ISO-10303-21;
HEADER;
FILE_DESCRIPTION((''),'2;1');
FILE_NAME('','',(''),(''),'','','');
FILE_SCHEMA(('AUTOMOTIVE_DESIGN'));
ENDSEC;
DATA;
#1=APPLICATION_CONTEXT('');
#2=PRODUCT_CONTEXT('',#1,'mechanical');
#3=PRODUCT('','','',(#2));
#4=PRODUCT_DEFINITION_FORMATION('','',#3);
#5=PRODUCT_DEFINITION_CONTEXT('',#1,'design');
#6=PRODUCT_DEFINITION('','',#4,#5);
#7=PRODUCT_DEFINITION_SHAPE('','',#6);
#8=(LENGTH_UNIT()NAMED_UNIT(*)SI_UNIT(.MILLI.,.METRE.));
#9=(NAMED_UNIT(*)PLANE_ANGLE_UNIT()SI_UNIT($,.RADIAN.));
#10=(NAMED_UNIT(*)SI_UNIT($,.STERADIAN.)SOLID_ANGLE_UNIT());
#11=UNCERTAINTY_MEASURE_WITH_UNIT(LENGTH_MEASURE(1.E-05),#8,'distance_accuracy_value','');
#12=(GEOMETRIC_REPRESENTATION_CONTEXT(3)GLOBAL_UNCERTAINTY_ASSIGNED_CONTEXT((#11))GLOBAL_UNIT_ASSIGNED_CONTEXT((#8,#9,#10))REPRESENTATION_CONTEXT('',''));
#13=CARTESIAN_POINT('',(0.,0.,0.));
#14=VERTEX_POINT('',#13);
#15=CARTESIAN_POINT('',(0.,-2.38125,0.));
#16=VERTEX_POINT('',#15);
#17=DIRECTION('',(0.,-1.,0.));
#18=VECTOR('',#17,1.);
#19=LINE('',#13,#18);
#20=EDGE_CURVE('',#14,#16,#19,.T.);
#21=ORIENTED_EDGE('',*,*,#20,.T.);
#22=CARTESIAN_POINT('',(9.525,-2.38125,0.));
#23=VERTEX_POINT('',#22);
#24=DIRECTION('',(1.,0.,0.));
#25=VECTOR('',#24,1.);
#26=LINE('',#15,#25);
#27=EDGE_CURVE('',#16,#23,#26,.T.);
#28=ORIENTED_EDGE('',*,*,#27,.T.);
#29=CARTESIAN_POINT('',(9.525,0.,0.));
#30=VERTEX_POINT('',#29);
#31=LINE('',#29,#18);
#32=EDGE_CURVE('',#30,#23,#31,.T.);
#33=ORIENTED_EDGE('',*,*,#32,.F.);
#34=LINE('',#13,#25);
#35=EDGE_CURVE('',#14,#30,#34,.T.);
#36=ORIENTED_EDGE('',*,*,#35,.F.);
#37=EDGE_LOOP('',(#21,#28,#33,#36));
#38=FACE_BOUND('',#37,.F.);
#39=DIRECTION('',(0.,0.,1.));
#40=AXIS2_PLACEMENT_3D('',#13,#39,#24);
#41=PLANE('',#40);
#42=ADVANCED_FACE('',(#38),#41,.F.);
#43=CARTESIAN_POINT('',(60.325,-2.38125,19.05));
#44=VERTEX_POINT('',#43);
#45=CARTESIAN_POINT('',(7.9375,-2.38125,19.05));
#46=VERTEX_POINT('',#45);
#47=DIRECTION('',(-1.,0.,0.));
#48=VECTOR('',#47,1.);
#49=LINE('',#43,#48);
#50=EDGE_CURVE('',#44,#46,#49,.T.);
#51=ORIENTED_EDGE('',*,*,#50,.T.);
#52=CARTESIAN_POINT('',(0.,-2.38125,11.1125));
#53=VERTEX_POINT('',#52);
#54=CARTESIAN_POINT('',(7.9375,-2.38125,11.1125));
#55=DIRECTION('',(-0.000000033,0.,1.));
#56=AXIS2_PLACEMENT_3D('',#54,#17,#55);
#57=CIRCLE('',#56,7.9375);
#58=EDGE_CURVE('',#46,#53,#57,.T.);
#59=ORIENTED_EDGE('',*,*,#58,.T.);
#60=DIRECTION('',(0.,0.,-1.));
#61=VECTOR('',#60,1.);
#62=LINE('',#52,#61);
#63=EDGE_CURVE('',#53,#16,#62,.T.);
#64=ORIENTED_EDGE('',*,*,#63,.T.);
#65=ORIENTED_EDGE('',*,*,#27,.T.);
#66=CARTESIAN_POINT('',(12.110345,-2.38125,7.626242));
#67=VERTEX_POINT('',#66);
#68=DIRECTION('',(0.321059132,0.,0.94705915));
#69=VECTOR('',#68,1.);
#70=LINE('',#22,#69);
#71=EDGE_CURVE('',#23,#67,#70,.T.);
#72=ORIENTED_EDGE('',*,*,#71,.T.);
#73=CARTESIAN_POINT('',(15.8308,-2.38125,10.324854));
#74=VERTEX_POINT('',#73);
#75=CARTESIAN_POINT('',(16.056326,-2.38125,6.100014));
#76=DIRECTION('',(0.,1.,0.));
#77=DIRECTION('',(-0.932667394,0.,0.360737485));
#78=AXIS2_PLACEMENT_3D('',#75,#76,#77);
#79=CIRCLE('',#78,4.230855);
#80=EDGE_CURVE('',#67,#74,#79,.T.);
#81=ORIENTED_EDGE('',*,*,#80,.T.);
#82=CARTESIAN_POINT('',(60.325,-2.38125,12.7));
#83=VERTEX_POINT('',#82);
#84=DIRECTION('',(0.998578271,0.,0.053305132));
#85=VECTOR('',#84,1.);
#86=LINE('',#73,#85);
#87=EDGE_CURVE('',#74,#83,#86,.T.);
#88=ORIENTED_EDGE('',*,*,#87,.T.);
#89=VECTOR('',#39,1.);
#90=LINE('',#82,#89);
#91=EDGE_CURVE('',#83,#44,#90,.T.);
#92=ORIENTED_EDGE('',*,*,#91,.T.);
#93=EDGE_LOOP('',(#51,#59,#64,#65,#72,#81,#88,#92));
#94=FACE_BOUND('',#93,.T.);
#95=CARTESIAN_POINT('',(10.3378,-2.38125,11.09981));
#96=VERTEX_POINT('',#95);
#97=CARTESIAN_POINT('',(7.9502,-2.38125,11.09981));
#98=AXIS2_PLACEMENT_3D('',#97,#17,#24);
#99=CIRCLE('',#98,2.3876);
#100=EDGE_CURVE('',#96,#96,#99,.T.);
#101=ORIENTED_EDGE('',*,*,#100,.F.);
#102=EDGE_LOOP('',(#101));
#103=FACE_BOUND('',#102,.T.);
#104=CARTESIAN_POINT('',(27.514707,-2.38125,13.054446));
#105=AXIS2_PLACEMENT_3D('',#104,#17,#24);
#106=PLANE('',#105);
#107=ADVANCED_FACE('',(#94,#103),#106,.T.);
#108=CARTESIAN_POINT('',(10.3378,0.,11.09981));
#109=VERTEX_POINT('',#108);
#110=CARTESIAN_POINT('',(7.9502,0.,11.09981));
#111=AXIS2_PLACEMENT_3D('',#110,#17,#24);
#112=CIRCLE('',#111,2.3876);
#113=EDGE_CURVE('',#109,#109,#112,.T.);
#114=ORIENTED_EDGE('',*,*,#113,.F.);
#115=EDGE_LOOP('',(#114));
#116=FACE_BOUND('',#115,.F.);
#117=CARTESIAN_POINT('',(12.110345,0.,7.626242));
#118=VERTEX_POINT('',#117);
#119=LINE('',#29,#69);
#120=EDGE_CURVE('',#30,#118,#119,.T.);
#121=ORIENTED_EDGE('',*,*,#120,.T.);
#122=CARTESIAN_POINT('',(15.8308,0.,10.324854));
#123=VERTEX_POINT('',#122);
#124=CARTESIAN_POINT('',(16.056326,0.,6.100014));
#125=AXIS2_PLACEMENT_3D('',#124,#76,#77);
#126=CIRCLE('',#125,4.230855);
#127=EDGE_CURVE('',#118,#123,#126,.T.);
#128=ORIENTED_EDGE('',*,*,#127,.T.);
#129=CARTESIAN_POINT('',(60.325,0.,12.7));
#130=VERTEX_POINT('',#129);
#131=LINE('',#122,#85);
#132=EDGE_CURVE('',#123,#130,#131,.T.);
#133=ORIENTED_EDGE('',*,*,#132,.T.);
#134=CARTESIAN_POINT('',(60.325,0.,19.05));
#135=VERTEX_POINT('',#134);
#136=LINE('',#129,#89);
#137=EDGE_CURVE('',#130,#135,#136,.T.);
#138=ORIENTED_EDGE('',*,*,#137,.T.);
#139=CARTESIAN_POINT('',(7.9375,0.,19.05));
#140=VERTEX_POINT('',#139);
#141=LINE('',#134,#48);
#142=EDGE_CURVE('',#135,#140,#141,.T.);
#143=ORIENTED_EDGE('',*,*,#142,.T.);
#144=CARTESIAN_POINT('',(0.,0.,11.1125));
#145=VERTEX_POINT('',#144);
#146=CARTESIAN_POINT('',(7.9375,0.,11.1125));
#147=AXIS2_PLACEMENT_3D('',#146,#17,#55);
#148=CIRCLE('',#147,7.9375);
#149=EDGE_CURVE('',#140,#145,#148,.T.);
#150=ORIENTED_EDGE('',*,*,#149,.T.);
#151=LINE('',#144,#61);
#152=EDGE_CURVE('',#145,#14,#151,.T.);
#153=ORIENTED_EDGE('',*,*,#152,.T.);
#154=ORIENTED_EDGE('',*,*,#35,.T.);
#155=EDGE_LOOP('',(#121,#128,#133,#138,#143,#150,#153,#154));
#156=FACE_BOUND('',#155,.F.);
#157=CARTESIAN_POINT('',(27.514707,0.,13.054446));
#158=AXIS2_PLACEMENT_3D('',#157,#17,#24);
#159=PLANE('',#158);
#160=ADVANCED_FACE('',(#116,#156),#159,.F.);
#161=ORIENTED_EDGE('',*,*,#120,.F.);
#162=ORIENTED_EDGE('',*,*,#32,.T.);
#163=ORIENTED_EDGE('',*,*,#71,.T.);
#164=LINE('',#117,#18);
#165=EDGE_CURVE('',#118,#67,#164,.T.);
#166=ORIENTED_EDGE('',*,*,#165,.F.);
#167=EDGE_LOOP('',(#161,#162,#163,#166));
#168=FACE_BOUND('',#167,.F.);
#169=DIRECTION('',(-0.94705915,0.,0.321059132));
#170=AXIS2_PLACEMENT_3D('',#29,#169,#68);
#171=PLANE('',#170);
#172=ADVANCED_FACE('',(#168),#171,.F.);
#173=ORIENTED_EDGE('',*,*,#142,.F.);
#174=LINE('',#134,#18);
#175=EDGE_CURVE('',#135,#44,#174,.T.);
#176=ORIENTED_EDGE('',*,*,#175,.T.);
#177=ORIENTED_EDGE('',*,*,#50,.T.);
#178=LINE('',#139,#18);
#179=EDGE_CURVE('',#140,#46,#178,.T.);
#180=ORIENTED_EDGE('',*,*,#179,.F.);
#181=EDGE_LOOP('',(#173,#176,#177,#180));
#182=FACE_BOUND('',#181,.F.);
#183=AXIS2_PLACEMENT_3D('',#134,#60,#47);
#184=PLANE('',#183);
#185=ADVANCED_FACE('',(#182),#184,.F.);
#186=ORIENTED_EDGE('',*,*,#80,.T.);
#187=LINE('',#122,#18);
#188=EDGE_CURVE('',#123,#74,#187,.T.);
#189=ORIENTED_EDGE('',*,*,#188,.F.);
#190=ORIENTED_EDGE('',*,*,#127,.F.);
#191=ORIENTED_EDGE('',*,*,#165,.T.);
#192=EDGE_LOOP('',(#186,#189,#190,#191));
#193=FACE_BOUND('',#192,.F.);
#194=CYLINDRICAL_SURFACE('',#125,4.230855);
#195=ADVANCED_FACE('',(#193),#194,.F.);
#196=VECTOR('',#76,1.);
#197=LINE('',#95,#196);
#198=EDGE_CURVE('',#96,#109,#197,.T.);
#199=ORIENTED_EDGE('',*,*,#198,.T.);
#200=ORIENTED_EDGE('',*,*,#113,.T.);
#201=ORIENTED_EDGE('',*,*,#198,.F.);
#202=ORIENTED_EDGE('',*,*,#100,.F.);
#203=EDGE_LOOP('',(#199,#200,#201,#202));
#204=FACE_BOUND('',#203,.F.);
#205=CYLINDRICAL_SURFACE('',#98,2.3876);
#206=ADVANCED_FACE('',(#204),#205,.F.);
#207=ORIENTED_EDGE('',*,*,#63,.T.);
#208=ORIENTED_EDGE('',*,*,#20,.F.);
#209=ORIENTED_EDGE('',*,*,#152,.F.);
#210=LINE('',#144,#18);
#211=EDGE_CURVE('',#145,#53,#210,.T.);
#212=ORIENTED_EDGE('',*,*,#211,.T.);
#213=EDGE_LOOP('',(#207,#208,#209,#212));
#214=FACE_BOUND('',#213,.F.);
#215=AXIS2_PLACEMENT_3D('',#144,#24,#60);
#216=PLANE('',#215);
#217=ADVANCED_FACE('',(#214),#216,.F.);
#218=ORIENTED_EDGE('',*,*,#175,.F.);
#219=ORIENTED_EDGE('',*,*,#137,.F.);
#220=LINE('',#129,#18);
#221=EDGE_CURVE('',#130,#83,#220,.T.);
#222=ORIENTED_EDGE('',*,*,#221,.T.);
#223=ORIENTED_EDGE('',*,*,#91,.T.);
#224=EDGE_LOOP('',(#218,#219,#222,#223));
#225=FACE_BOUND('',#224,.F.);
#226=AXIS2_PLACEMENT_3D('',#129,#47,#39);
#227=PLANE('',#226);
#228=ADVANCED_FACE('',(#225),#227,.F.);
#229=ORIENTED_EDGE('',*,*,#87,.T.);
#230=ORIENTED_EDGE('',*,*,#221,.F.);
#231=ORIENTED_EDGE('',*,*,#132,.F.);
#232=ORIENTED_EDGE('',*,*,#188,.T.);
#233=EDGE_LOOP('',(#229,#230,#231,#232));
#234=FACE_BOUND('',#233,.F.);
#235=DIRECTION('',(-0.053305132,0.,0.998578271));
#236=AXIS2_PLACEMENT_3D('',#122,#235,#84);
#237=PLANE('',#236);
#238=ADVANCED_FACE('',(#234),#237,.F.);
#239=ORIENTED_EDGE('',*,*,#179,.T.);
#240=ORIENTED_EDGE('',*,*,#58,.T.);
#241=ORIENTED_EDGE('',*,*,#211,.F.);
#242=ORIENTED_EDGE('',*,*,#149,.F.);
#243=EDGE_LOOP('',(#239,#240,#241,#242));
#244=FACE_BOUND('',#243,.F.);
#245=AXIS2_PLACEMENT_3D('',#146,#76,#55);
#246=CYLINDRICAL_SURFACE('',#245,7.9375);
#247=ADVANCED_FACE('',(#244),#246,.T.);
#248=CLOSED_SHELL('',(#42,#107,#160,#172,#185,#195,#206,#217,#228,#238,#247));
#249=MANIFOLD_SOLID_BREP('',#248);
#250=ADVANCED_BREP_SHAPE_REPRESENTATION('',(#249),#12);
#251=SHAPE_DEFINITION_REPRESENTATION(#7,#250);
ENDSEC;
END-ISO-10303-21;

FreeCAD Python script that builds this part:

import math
import FreeCAD as App
import Part
import Sketcher
Q = App.Units.Quantity

doc = App.newDocument("Part")
params = doc.addObject("Spreadsheet::Sheet", "Params")
for row, (alias, value) in enumerate([
    ("sketch1_radius", "0.3125 in"),
    ("sketch1_height", "0.25 in"),
    ("sketch1_width", "2.0625 in"),
    ("pad1_length", "0.09375 in"),
    ("sketch2_diameter", "0.188 in"),
    ("pocket1_length", "1 in"),
], start=1):
    params.set(f"A{row}", alias)
    params.set(f"B{row}", "=" + value)
    params.setAlias(f"B{row}", alias)

body = doc.addObject("PartDesign::Body", "Body")

# Sketch on XZ plane
sketch1 = body.newObject("Sketcher::SketchObject", "Sketch")
sketch1.AttachmentSupport = (doc.getObject("XZ_Plane"), [""])
sketch1.MapMode = "FlatFace"
sketch1.addGeometry(Part.LineSegment(App.Vector(60.3, 19.1, 0), App.Vector(7.9, 19.1, 0)), False)
sketch1.addGeometry(Part.ArcOfCircle(Part.Circle(App.Vector(7.9, 11.1, 0), App.Vector(0, 0, 1), 7.9), math.radians(90), math.radians(180)), False)
sketch1.addGeometry(Part.LineSegment(App.Vector(0, 11.1, 0), App.Vector(0, 0, 0)), False)
sketch1.addGeometry(Part.LineSegment(App.Vector(0, 0, 0), App.Vector(9.5, 0, 0)), False)
sketch1.addGeometry(Part.LineSegment(App.Vector(9.5, 0, 0), App.Vector(12.1, 7.6, 0)), False)
sketch1.addGeometry(Part.ArcOfCircle(Part.Circle(App.Vector(16.1, 6.1, 0), App.Vector(0, 0, 1), 4.2), math.radians(93), math.radians(159)), False)
sketch1.addGeometry(Part.LineSegment(App.Vector(15.8, 10.3, 0), App.Vector(60.3, 12.7, 0)), False)
sketch1.addGeometry(Part.LineSegment(App.Vector(60.3, 12.7, 0), App.Vector(60.3, 19.1, 0)), False)
sketch1.addConstraint(Sketcher.Constraint("Tangent", 0, 2, 1, 1))
sketch1.addConstraint(Sketcher.Constraint("Tangent", 1, 2, 2, 1))
sketch1.addConstraint(Sketcher.Constraint("Coincident", 2, 2, 3, 1))
sketch1.addConstraint(Sketcher.Constraint("Coincident", 3, 2, 4, 1))
sketch1.addConstraint(Sketcher.Constraint("Coincident", 4, 2, 5, 2))
sketch1.addConstraint(Sketcher.Constraint("Tangent", 5, 1, 6, 1))
sketch1.addConstraint(Sketcher.Constraint("Coincident", 6, 2, 7, 1))
sketch1.addConstraint(Sketcher.Constraint("Coincident", 7, 2, 0, 1))
sketch1.addConstraint(Sketcher.Constraint("Horizontal", 0))
sketch1.addConstraint(Sketcher.Constraint("Vertical", 2))
sketch1.addConstraint(Sketcher.Constraint("Horizontal", 3))
sketch1.addConstraint(Sketcher.Constraint("Vertical", 7))
sketch1.addConstraint(Sketcher.Constraint("Coincident", 2, 2, -1, 1))
sketch1.addConstraint(Sketcher.Constraint("Radius", 1, Q("0.3125 in")))
sketch1.addConstraint(Sketcher.Constraint("DistanceX", 3, 2, 6, 2, Q("2 in")))
sketch1.addConstraint(Sketcher.Constraint("DistanceY", 7, 1, 7, 2, Q("0.25 in")))
sketch1.addConstraint(Sketcher.Constraint("DistanceY", -1, 1, 6, 2, Q("0.5 in")))
sketch1.addConstraint(Sketcher.Constraint("DistanceX", 0, 2, 0, 1, Q("2.0625 in")))
sketch1.addConstraint(Sketcher.Constraint("Radius", 5, 4.230855))
sketch1.addConstraint(Sketcher.Constraint("DistanceX", -1, 1, 5, 1, 15.8308))
sketch1.addConstraint(Sketcher.Constraint("Distance", 4, 8.052551))
sketch1.addConstraint(Sketcher.Constraint("Distance", 6, 44.557549))
sketch1.setExpression("Constraints[13]", "Params.sketch1_radius")
sketch1.setExpression("Constraints[15]", "Params.sketch1_height")
sketch1.setExpression("Constraints[17]", "Params.sketch1_width")
pad1 = body.newObject("PartDesign::Pad", "Pad")
pad1.Profile = sketch1
pad1.setExpression("Length", "Params.pad1_length")

# Sketch on XZ plane
sketch2 = body.newObject("Sketcher::SketchObject", "Sketch001")
sketch2.AttachmentSupport = (doc.getObject("XZ_Plane"), [""])
sketch2.MapMode = "FlatFace"
sketch2.AttachmentOffset = App.Placement(App.Vector(0, 0, 0.09375 * 25.4), App.Rotation())
sketch2.addGeometry(Part.Circle(App.Vector(8, 11.1, 0), App.Vector(0, 0, 1), 2.4), False)
sketch2.addConstraint(Sketcher.Constraint("Diameter", 0, Q("0.188 in")))
sketch2.addConstraint(Sketcher.Constraint("DistanceX", -1, 1, 0, 3, Q("0.313 in")))
sketch2.addConstraint(Sketcher.Constraint("DistanceY", -1, 1, 0, 3, 11.09981))
sketch2.setExpression("Constraints[0]", "Params.sketch2_diameter")
pocket1 = body.newObject("PartDesign::Pocket", "Pocket")
pocket1.Profile = sketch2
pocket1.setExpression("Length", "Params.pocket1_length")

doc.recompute()
